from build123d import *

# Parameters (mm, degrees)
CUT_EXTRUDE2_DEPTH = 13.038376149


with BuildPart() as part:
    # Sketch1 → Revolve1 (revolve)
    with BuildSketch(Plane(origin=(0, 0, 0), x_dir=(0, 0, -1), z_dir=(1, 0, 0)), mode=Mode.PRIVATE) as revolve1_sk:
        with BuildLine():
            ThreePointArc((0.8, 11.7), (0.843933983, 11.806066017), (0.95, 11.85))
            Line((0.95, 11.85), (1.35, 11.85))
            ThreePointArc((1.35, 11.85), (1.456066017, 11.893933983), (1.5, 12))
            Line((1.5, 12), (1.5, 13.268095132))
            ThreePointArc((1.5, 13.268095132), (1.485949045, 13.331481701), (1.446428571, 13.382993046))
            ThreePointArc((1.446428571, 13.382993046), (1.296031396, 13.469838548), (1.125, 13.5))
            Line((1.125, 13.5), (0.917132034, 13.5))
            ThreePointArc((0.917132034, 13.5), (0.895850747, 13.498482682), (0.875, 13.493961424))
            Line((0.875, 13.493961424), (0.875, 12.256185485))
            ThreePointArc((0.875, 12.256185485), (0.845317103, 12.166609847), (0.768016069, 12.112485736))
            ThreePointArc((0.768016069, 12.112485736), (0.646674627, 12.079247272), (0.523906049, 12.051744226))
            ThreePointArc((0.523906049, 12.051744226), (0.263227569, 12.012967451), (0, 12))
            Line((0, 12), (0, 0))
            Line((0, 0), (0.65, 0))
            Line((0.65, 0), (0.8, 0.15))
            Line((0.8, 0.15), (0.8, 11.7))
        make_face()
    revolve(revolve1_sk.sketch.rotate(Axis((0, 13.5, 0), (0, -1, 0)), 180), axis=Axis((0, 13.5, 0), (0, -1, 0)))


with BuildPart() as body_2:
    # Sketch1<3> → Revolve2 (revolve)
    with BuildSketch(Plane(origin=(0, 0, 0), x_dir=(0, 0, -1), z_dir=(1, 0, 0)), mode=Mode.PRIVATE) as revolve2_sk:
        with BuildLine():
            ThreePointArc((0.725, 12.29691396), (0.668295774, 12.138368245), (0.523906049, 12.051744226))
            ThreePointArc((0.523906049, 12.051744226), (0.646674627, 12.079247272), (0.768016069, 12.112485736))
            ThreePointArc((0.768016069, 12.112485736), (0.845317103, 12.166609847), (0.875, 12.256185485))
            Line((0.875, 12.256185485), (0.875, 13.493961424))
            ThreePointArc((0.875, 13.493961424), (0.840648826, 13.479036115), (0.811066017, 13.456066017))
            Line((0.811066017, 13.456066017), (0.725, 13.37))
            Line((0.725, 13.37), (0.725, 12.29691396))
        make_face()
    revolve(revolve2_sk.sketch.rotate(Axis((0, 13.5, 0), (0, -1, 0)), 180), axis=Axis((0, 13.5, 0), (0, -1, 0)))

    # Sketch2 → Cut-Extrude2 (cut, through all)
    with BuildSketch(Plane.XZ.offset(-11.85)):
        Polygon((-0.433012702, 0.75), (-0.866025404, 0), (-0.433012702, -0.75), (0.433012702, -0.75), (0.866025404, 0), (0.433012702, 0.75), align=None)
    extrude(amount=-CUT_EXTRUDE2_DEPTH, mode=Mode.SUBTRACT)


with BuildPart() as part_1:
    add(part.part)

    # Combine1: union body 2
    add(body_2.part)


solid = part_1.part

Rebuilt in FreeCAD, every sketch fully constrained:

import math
import FreeCAD as App
import Part
import Sketcher

V = App.Vector
Q = App.Units.Quantity


def add_polygon(sketch, points):
    """Adds a closed chain of lines whose ends are joined by coincident constraints."""
    first, n = sketch.GeometryCount, len(points)
    for a, b in zip(points, points[1:] + points[:1]):
        sketch.addGeometry(Part.LineSegment(App.Vector(*a, 0), App.Vector(*b, 0)), False)
    for i in range(n):
        sketch.addConstraint(Sketcher.Constraint("Coincident", first + i, 2, first + (i + 1) % n, 1))

doc = App.newDocument("Part")
params = doc.addObject("Spreadsheet::Sheet", "Params")
for row, (alias, value) in enumerate([
    ("sketch1_radius", "0.5 mm"),
    ("sketch1_width", "12 mm"),
    ("sketch1_radius2", "0.15 mm"),
    ("sketch1_height", "0.4 mm"),
    ("sketch1_width2", "11.55 mm"),
    ("revolution_angle", "360 deg"),
    ("sketch2_radius", "0.25 mm"),
    ("sketch2_radius2", "0.15 mm"),
    ("revolution2_angle", "360 deg"),
], start=1):
    params.set(f"A{row}", alias)
    params.set(f"B{row}", "=" + value)
    params.setAlias(f"B{row}", alias)

body = doc.addObject("PartDesign::Body", "Body")

sketch1 = body.newObject("Sketcher::SketchObject", "Sketch")
sketch1.AttachmentSupport = (doc.getObject("YZ_Plane"), [""])
sketch1.MapMode = "FlatFace"
sketch1.addGeometry([
    Part.ArcOfCircle(Part.Circle(V(11.7, -0.95, 0), V(0, 0, 1), 0.15), math.radians(0), math.radians(90)),
    Part.LineSegment(V(11.85, -0.95, 0), V(11.85, -1.35, 0)),
    Part.ArcOfCircle(Part.Circle(V(12, -1.35, 0), V(0, 0, 1), 0.15), math.radians(-180), math.radians(-90)),
    Part.LineSegment(V(12, -1.5, 0), V(13.268, -1.5, 0)),
    Part.ArcOfCircle(Part.Circle(V(13.268, -1.35, 0), V(0, 0, 1), 0.15), math.radians(-90), math.radians(-40)),
    Part.ArcOfCircle(Part.Circle(V(13, -1.125, 0), V(0, 0, 1), 0.5), math.radians(-40), math.radians(0)),
    Part.LineSegment(V(13.5, -1.125, 0), V(13.5, -0.917, 0)),
    Part.ArcOfCircle(Part.Circle(V(13.35, -0.917, 0), V(0, 0, 1), 0.15), math.radians(0), math.radians(16.31)),
    Part.LineSegment(V(13.494, -0.875, 0), V(12.256, -0.875, 0)),
    Part.ArcOfCircle(Part.Circle(V(12.256, -0.725, 0), V(0, 0, 1), 0.15), math.radians(-163), math.radians(-90)),
    Part.ArcOfCircle(Part.Circle(V(14.678, 0, 0), V(0, 0, 1), 2.678), math.radians(-168.72), math.radians(-163.34)),
    Part.ArcOfCircle(Part.Circle(V(14.678, 0, 0), V(0, 0, 1), 2.678), math.radians(-180), math.radians(-168.72)),
    Part.LineSegment(V(12, 0, 0), V(0, 0, 0)),
    Part.LineSegment(V(0, 0, 0), V(0, -0.65, 0)),
    Part.LineSegment(V(0, -0.65, 0), V(0.15, -0.8, 0)),
    Part.LineSegment(V(0.15, -0.8, 0), V(11.7, -0.8, 0)),
], False)
sketch1.addConstraint([
    Sketcher.Constraint("Tangent", 0, 1, 1, 1),
    Sketcher.Constraint("Tangent", 1, 2, 2, 1),
    Sketcher.Constraint("Tangent", 2, 2, 3, 1),
    Sketcher.Constraint("Tangent", 3, 2, 4, 1),
    Sketcher.Constraint("Tangent", 4, 2, 5, 1),
    Sketcher.Constraint("Tangent", 5, 2, 6, 1),
    Sketcher.Constraint("Tangent", 6, 2, 7, 1),
    Sketcher.Constraint("Coincident", 7, 2, 8, 1),
    Sketcher.Constraint("Tangent", 8, 2, 9, 2),
    Sketcher.Constraint("Tangent", 9, 1, 10, 2),
    Sketcher.Constraint("Tangent", 10, 1, 11, 2),
    Sketcher.Constraint("Coincident", 11, 1, 12, 1),
    Sketcher.Constraint("Coincident", 12, 2, 13, 1),
    Sketcher.Constraint("Coincident", 13, 2, 14, 1),
    Sketcher.Constraint("Coincident", 14, 2, 15, 1),
    Sketcher.Constraint("Tangent", 15, 2, 0, 2),
    Sketcher.Constraint("Vertical", 1),
    Sketcher.Constraint("Horizontal", 3),
    Sketcher.Constraint("Vertical", 6),
    Sketcher.Constraint("Horizontal", 8),
    Sketcher.Constraint("Horizontal", 12),
    Sketcher.Constraint("Vertical", 13),
    Sketcher.Constraint("Horizontal", 15),
    Sketcher.Constraint("Coincident", 12, 2, -1, 1),
    Sketcher.Constraint("Equal", 0, 2),
    Sketcher.Constraint("Equal", 2, 4),
    Sketcher.Constraint("Equal", 4, 7),
    Sketcher.Constraint("Equal", 7, 9),
    Sketcher.Constraint("Equal", 10, 11),
    Sketcher.Constraint("PointOnObject", 10, 3, -1),
    Sketcher.Constraint("Vertical", 2, 2, 11, 1),
    Sketcher.Constraint("Radius", 5, 0.5),
    Sketcher.Constraint("DistanceX", 12, 2, 12, 1, 12.0),
    Sketcher.Constraint("Angle", 14, Q("-45 deg")),
    Sketcher.Constraint("Radius", 0, 0.15),
    Sketcher.Constraint("DistanceY", 1, 2, 1, 1, 0.4),
    Sketcher.Constraint("DistanceX", -1, 1, 5, 3, 13.0),
    Sketcher.Constraint("DistanceX", 15, 1, 15, 2, 11.55),
    Sketcher.Constraint("DistanceY", 13, 2, 13, 1, 0.65),
    Sketcher.Constraint("DistanceY", 5, 3, 9, 3, 0.4),
    Sketcher.Constraint("DistanceY", 5, 3, -1, 1, 1.125),
    Sketcher.Constraint("Radius", 10, 2.678125),
    Sketcher.Constraint("DistanceX", 8, 2, 8, 1, 1.237776),
    Sketcher.Constraint("DistanceX", 10, 1, 9, 1, 0.060742),
])
sketch1.setExpression("Constraints[31]", "Params.sketch1_radius")
sketch1.setExpression("Constraints[32]", "Params.sketch1_width")
sketch1.setExpression("Constraints[34]", "Params.sketch1_radius2")
sketch1.setExpression("Constraints[35]", "Params.sketch1_height")
sketch1.setExpression("Constraints[37]", "Params.sketch1_width2")
revolution = body.newObject("PartDesign::Revolution", "Revolution")
revolution.Profile = sketch1
revolution.ReferenceAxis = (sketch1, ["H_Axis"])
revolution.setExpression("Angle", "Params.revolution_angle")
body2 = doc.addObject("PartDesign::Body", "Body001")

sketch2 = body2.newObject("Sketcher::SketchObject", "Sketch001")
sketch2.AttachmentSupport = (doc.getObject("YZ_Plane001"), [""])
sketch2.MapMode = "FlatFace"
sketch2.addGeometry([
    Part.ArcOfCircle(Part.Circle(V(12.3, -0.47, 0), V(0, 0, 1), 0.25), math.radians(-169), math.radians(-90)),
    Part.ArcOfCircle(Part.Circle(V(14.68, 0, 0), V(0, 0, 1), 2.68), math.radians(-168.72), math.radians(-163.34)),
    Part.ArcOfCircle(Part.Circle(V(12.26, -0.73, 0), V(0, 0, 1), 0.15), math.radians(-163), math.radians(-90)),
    Part.LineSegment(V(12.26, -0.88, 0), V(13.49, -0.88, 0)),
    Part.ArcOfCircle(Part.Circle(V(13.35, -0.92, 0), V(0, 0, 1), 0.15), math.radians(16), math.radians(45)),
    Part.LineSegment(V(13.46, -0.81, 0), V(13.37, -0.72, 0)),
    Part.LineSegment(V(13.37, -0.72, 0), V(12.3, -0.72, 0)),
], False)
sketch2.addConstraint([
    Sketcher.Constraint("Tangent", 0, 1, 1, 1),
    Sketcher.Constraint("Tangent", 1, 2, 2, 1),
    Sketcher.Constraint("Tangent", 2, 2, 3, 1),
    Sketcher.Constraint("Coincident", 3, 2, 4, 1),
    Sketcher.Constraint("Tangent", 4, 2, 5, 1),
    Sketcher.Constraint("Coincident", 5, 2, 6, 1),
    Sketcher.Constraint("Tangent", 6, 2, 0, 2),
    Sketcher.Constraint("Horizontal", 3),
    Sketcher.Constraint("Horizontal", 6),
    Sketcher.Constraint("Equal", 2, 4),
    Sketcher.Constraint("PointOnObject", 1, 3, -1),
    Sketcher.Constraint("Horizontal", 2, 3, 5, 2),
    Sketcher.Constraint("Angle", 5, Q("135 deg")),
    Sketcher.Constraint("Radius", 0, 0.25),
    Sketcher.Constraint("Radius", 2, 0.15),
    Sketcher.Constraint("DistanceX", -1, 1, 4, 3, 13.35),
    Sketcher.Constraint("DistanceX", -1, 1, 5, 2, 13.37),
    Sketcher.Constraint("DistanceY", 0, 3, -1, 1, 0.475),
    Sketcher.Constraint("Radius", 1, 2.678125),
    Sketcher.Constraint("DistanceX", 3, 1, 3, 2, 1.237776),
])
sketch2.setExpression("Constraints[13]", "Params.sketch2_radius")
sketch2.setExpression("Constraints[14]", "Params.sketch2_radius2")
revolution2 = body2.newObject("PartDesign::Revolution", "Revolution001")
revolution2.Profile = sketch2
revolution2.ReferenceAxis = (sketch2, ["H_Axis"])
revolution2.setExpression("Angle", "Params.revolution2_angle")

sketch3 = body2.newObject("Sketcher::SketchObject", "Sketch002")
sketch3.AttachmentSupport = (doc.getObject("XZ_Plane001"), [""])
sketch3.MapMode = "FlatFace"
sketch3.AttachmentOffset = App.Placement(V(0, 0, -11.85), App.Rotation())
add_polygon(sketch3, [(-0.4, 0.8), (-0.9, 0), (-0.4, -0.8), (0.4, -0.8), (0.9, 0), (0.4, 0.8)])
sketch3.addConstraint([
    Sketcher.Constraint("Horizontal", 2),
    Sketcher.Constraint("Horizontal", 5),
    Sketcher.Constraint("Symmetric", 0, 2, 3, 2, -1, 1),
    Sketcher.Constraint("Symmetric", 1, 2, 4, 2, -1, 1),
    Sketcher.Constraint("PointOnObject", 0, 2, -1),
    Sketcher.Constraint("Parallel", 0, 3),
    Sketcher.Constraint("Vertical", 2, 2, 4, 2),
    Sketcher.Constraint("Angle", 0, Q("-120 deg")),
    Sketcher.Constraint("DistanceY", 2, 2, 4, 2, 1.5),
    Sketcher.Constraint("DistanceX", 2, 1, 2, 2, 0.866025),
])
pocket1 = body2.newObject("PartDesign::Pocket", "Pocket")
pocket1.Profile = sketch3
pocket1.Type = "ThroughAll"
doc.recompute()

boolean = body.newObject("PartDesign::Boolean", "Boolean")
boolean.Type = "Fuse"
boolean.addObjects([body2])

doc.recompute()
